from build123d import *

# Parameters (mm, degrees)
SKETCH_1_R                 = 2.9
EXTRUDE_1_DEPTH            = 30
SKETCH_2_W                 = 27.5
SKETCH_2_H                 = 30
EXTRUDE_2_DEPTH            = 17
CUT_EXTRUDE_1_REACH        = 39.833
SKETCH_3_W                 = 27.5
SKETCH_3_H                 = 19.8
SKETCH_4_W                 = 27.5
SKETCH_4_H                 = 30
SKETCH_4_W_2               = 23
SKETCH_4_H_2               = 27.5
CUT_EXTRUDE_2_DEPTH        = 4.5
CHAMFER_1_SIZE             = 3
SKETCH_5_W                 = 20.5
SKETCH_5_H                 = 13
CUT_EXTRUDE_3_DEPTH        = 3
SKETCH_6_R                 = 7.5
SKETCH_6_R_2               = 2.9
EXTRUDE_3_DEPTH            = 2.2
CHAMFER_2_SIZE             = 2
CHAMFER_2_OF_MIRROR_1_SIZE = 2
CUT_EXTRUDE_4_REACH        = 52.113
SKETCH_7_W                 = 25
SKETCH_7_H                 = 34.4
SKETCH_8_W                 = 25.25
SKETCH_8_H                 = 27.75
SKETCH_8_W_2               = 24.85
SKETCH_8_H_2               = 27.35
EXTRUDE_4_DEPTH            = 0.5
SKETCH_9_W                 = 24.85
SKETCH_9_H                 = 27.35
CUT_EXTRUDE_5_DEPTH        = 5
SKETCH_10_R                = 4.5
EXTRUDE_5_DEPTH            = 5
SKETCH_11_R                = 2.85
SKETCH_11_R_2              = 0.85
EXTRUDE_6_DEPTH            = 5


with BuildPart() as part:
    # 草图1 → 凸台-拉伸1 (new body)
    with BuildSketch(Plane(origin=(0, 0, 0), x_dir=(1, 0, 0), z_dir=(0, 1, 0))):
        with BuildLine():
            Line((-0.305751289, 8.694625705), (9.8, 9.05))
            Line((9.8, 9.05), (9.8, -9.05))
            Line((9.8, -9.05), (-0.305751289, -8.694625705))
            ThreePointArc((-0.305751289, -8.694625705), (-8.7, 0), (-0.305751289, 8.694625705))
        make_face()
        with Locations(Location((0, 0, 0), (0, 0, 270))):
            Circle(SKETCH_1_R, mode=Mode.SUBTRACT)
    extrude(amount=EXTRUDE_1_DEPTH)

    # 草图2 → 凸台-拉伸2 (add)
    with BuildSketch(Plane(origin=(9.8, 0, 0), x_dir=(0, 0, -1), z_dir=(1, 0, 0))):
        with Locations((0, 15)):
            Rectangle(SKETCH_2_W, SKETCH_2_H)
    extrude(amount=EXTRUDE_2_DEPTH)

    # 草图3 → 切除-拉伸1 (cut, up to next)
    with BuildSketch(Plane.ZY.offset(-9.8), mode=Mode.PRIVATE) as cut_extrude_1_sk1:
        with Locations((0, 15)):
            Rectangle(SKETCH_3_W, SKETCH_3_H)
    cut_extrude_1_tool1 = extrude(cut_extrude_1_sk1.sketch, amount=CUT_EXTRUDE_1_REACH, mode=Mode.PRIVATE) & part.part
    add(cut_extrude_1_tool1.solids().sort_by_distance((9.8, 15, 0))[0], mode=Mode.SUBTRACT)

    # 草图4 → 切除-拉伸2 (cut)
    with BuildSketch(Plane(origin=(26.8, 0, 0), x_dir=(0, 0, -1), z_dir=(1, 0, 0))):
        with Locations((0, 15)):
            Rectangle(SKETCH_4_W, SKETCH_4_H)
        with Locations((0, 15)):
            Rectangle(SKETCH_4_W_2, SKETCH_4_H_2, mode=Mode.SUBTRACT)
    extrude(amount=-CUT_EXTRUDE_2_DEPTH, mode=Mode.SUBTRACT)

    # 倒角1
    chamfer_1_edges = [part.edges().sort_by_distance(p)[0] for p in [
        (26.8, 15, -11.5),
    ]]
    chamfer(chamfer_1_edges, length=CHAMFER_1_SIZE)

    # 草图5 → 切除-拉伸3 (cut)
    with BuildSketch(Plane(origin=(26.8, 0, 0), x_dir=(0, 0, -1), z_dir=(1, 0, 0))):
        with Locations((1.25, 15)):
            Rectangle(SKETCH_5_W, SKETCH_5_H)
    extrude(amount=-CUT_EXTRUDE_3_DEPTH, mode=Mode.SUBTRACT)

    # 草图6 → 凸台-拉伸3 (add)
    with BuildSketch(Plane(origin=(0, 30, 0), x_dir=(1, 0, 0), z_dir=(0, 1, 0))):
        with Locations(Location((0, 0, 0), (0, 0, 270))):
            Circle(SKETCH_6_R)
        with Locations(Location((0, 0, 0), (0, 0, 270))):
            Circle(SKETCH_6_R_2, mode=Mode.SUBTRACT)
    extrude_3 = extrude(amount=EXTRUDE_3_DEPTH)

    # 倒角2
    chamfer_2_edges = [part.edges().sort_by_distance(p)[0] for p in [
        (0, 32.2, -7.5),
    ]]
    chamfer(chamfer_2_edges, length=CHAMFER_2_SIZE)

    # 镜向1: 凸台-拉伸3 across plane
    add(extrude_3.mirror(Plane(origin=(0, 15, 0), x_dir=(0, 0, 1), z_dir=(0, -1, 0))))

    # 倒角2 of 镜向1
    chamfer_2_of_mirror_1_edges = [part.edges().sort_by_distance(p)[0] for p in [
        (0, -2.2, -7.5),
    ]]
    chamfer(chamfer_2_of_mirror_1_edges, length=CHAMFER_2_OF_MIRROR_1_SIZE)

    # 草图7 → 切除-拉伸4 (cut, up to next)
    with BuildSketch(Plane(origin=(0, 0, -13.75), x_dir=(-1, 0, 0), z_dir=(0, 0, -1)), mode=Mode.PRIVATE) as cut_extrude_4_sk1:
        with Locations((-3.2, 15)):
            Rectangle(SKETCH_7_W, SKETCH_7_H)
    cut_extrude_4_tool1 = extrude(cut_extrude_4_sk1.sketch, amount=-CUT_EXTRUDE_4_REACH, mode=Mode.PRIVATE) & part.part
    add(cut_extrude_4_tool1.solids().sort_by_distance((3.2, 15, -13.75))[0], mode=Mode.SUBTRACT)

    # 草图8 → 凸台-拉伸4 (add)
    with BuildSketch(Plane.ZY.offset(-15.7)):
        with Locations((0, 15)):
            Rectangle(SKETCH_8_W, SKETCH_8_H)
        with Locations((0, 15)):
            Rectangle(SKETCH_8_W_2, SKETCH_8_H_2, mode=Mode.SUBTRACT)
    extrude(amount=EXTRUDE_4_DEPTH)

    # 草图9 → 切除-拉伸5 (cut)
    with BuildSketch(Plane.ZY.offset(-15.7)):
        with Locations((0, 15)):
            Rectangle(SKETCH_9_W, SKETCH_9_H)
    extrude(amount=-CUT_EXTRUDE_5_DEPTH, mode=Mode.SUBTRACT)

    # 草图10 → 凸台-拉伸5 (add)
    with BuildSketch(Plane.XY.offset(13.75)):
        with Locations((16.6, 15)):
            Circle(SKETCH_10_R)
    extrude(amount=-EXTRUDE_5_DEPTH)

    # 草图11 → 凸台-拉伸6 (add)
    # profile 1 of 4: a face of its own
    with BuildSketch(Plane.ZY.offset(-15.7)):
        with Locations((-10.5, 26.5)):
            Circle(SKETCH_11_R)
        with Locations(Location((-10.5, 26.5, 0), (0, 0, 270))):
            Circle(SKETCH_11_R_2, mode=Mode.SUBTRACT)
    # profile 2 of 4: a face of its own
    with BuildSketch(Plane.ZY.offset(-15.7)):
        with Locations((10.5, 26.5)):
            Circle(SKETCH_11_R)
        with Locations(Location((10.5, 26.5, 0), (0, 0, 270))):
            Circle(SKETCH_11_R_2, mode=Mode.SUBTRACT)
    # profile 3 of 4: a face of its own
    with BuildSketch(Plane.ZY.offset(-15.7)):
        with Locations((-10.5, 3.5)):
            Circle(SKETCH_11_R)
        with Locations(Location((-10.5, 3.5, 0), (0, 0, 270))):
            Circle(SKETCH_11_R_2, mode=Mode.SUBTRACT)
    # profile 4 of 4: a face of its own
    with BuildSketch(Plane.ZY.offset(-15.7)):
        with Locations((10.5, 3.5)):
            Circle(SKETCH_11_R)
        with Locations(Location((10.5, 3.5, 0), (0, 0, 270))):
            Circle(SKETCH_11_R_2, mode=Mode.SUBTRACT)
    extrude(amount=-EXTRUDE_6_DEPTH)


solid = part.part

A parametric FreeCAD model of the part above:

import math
import FreeCAD as App
import Part
import Sketcher

V = App.Vector
Q = App.Units.Quantity


def edges_at(feature, points):
    """Names of the edges that pass closest to the given points."""
    edges = feature.Shape.Edges
    near = lambda p: min(range(len(edges)), key=lambda i: edges[i].distToShape(Part.Vertex(*p))[0])
    return sorted({f"Edge{near(p) + 1}" for p in points})

doc = App.newDocument("Part")
body = doc.addObject("PartDesign::Body", "Body")

# Sketch on XZ plane
sketch1 = doc.addObject("Sketcher::SketchObject", "Sketch")
body.addObject(sketch1)
sketch1.AttachmentSupport = (doc.XZ_Plane, [""])
sketch1.MapMode = "FlatFace"
sketch1.addGeometry([
    Part.LineSegment(V(9.8, -9.05, 0), V(-0.305751, -8.694626, 0)),  # 0
    Part.ArcOfCircle(Part.Circle(V(0, 0, 0), V(0, 0, 1), 8.7), math.radians(92.014008), math.radians(267.985992)),  # 1
    Part.LineSegment(V(-0.305751, 8.694626, 0), V(9.8, 9.05, 0)),  # 2
    Part.LineSegment(V(9.8, 9.05, 0), V(9.8, -9.05, 0)),  # 3
    Part.Circle(V(0, 0, 0), V(0, 0, 1), 2.9),  # 4
], False)
sketch1.addConstraint([
    Sketcher.Constraint("Tangent", 0, 2, 1, 2),
    Sketcher.Constraint("Tangent", 1, 1, 2, 1),
    Sketcher.Constraint("Coincident", 2, 2, 3, 1),
    Sketcher.Constraint("Coincident", 3, 2, 0, 1),
    Sketcher.Constraint("Vertical", 3),
    Sketcher.Constraint("Coincident", 1, 3, -1, 1),
    Sketcher.Constraint("Coincident", 4, 3, -1, 1),
    Sketcher.Constraint("Vertical", 0, 2, 1, 1),
    Sketcher.Constraint("Diameter", 4, Q("5.8 mm")),
    Sketcher.Constraint("Radius", 1, Q("8.7 mm")),
    Sketcher.Constraint("DistanceY", 3, 2, 3, 1, Q("18.1 mm")),
    Sketcher.Constraint("DistanceX", -1, 1, 2, 2, Q("9.8 mm")),
])
pad1 = doc.addObject("PartDesign::Pad", "Pad")
body.addObject(pad1)
pad1.Profile = sketch1
pad1.Length = 30
pad1.Reversed = True

# Sketch on YZ plane
sketch2 = doc.addObject("Sketcher::SketchObject", "Sketch001")
body.addObject(sketch2)
sketch2.AttachmentSupport = (doc.YZ_Plane, [""])
sketch2.MapMode = "FlatFace"
sketch2.AttachmentOffset = App.Placement(V(0, 0, 9.8), App.Rotation())
sketch2.addGeometry([
    Part.LineSegment(V(30, 13.75, 0), V(0, 13.75, 0)),
    Part.LineSegment(V(0, 13.75, 0), V(0, -13.75, 0)),
    Part.LineSegment(V(0, -13.75, 0), V(30, -13.75, 0)),
    Part.LineSegment(V(30, -13.75, 0), V(30, 13.75, 0)),
], False)
sketch2.addConstraint([
    Sketcher.Constraint("Coincident", 0, 2, 1, 1),
    Sketcher.Constraint("Coincident", 1, 2, 2, 1),
    Sketcher.Constraint("Coincident", 2, 2, 3, 1),
    Sketcher.Constraint("Coincident", 3, 2, 0, 1),
    Sketcher.Constraint("Horizontal", 0),
    Sketcher.Constraint("Vertical", 1),
    Sketcher.Constraint("Horizontal", 2),
    Sketcher.Constraint("Vertical", 3),
    Sketcher.Constraint("Symmetric", 0, 2, 1, 2, -1, 1),
    Sketcher.Constraint("DistanceX", 0, 2, 0, 1, Q("30 mm")),
    Sketcher.Constraint("DistanceY", 1, 2, 1, 1, Q("27.5 mm")),
])
pad2 = doc.addObject("PartDesign::Pad", "Pad001")
body.addObject(pad2)
pad2.Profile = sketch2
pad2.Length = 17

# Sketch on YZ plane
sketch3 = doc.addObject("Sketcher::SketchObject", "Sketch002")
body.addObject(sketch3)
sketch3.AttachmentSupport = (doc.YZ_Plane, [""])
sketch3.MapMode = "FlatFace"
sketch3.AttachmentOffset = App.Placement(V(0, 0, 9.8), App.Rotation())
sketch3.addGeometry([
    Part.LineSegment(V(24.9, -13.75, 0), V(5.1, -13.75, 0)),
    Part.LineSegment(V(5.1, -13.75, 0), V(5.1, 13.75, 0)),
    Part.LineSegment(V(5.1, 13.75, 0), V(24.9, 13.75, 0)),
    Part.LineSegment(V(24.9, 13.75, 0), V(24.9, -13.75, 0)),
], False)
sketch3.addConstraint([
    Sketcher.Constraint("Coincident", 0, 2, 1, 1),
    Sketcher.Constraint("Coincident", 1, 2, 2, 1),
    Sketcher.Constraint("Coincident", 2, 2, 3, 1),
    Sketcher.Constraint("Coincident", 3, 2, 0, 1),
    Sketcher.Constraint("Horizontal", 0),
    Sketcher.Constraint("Vertical", 1),
    Sketcher.Constraint("Horizontal", 2),
    Sketcher.Constraint("Vertical", 3),
    Sketcher.Constraint("DistanceX", 0, 2, 0, 1, Q("19.8 mm")),
    Sketcher.Constraint("DistanceY", 1, 1, 1, 2, Q("27.5 mm")),
    Sketcher.Constraint("DistanceX", -1, 1, 0, 2, Q("5.1 mm")),
    Sketcher.Constraint("DistanceY", 0, 2, -1, 1, Q("13.75 mm")),
])
pocket1 = doc.addObject("PartDesign::Pocket", "Pocket")
body.addObject(pocket1)
pocket1.Profile = sketch3
pocket1.Type = "UpToFirst"

# Sketch on YZ plane
sketch4 = doc.addObject("Sketcher::SketchObject", "Sketch003")
body.addObject(sketch4)
sketch4.AttachmentSupport = (doc.YZ_Plane, [""])
sketch4.MapMode = "FlatFace"
sketch4.AttachmentOffset = App.Placement(V(0, 0, 26.8), App.Rotation())
sketch4.addGeometry([
    Part.LineSegment(V(30, 13.75, 0), V(0, 13.75, 0)),  # 0
    Part.LineSegment(V(0, 13.75, 0), V(0, -13.75, 0)),  # 1
    Part.LineSegment(V(0, -13.75, 0), V(30, -13.75, 0)),  # 2
    Part.LineSegment(V(30, -13.75, 0), V(30, 13.75, 0)),  # 3
    Part.LineSegment(V(1.25, -11.5, 0), V(1.25, 11.5, 0)),  # 4
    Part.LineSegment(V(1.25, 11.5, 0), V(28.75, 11.5, 0)),  # 5
    Part.LineSegment(V(28.75, 11.5, 0), V(28.75, -11.5, 0)),  # 6
    Part.LineSegment(V(28.75, -11.5, 0), V(1.25, -11.5, 0)),  # 7
], False)
sketch4.addConstraint([
    Sketcher.Constraint("Coincident", 0, 2, 1, 1),
    Sketcher.Constraint("Coincident", 1, 2, 2, 1),
    Sketcher.Constraint("Coincident", 2, 2, 3, 1),
    Sketcher.Constraint("Coincident", 3, 2, 0, 1),
    Sketcher.Constraint("Coincident", 4, 2, 5, 1),
    Sketcher.Constraint("Coincident", 5, 2, 6, 1),
    Sketcher.Constraint("Coincident", 6, 2, 7, 1),
    Sketcher.Constraint("Coincident", 7, 2, 4, 1),
    Sketcher.Constraint("Horizontal", 0),
    Sketcher.Constraint("Vertical", 1),
    Sketcher.Constraint("Horizontal", 2),
    Sketcher.Constraint("Vertical", 3),
    Sketcher.Constraint("Vertical", 4),
    Sketcher.Constraint("Horizontal", 5),
    Sketcher.Constraint("Vertical", 6),
    Sketcher.Constraint("Horizontal", 7),
    Sketcher.Constraint("Symmetric", 0, 2, 1, 2, -1, 1),
    Sketcher.Constraint("Equal", 7, 1),
    Sketcher.Constraint("DistanceX", 0, 2, 0, 1, Q("30 mm")),
    Sketcher.Constraint("DistanceY", 4, 1, 4, 2, Q("23 mm")),
    Sketcher.Constraint("DistanceX", 5, 1, 5, 2, Q("27.5 mm")),
    Sketcher.Constraint("DistanceY", -1, 1, 4, 2, Q("11.5 mm")),
    Sketcher.Constraint("DistanceX", -1, 1, 4, 2, Q("1.25 mm")),
])
pocket2 = doc.addObject("PartDesign::Pocket", "Pocket001")
body.addObject(pocket2)
pocket2.Profile = sketch4
pocket2.Length = 4.5
doc.recompute()

chamfer = doc.addObject("PartDesign::Chamfer", "Chamfer")
body.addObject(chamfer)
chamfer.Base = (pocket2, edges_at(pocket2, [(26.8, 15, -11.5)]))
chamfer.Size = 3

# Sketch on YZ plane
sketch5 = doc.addObject("Sketcher::SketchObject", "Sketch004")
body.addObject(sketch5)
sketch5.AttachmentSupport = (doc.YZ_Plane, [""])
sketch5.MapMode = "FlatFace"
sketch5.AttachmentOffset = App.Placement(V(0, 0, 26.8), App.Rotation())
sketch5.addGeometry([
    Part.LineSegment(V(21.5, 9, 0), V(8.5, 9, 0)),
    Part.LineSegment(V(8.5, 9, 0), V(8.5, -11.5, 0)),
    Part.LineSegment(V(8.5, -11.5, 0), V(21.5, -11.5, 0)),
    Part.LineSegment(V(21.5, -11.5, 0), V(21.5, 9, 0)),
], False)
sketch5.addConstraint([
    Sketcher.Constraint("Coincident", 0, 2, 1, 1),
    Sketcher.Constraint("Coincident", 1, 2, 2, 1),
    Sketcher.Constraint("Coincident", 2, 2, 3, 1),
    Sketcher.Constraint("Coincident", 3, 2, 0, 1),
    Sketcher.Constraint("Horizontal", 0),
    Sketcher.Constraint("Vertical", 1),
    Sketcher.Constraint("Horizontal", 2),
    Sketcher.Constraint("Vertical", 3),
    Sketcher.Constraint("DistanceX", 0, 2, 0, 1, Q("13 mm")),
    Sketcher.Constraint("DistanceY", 1, 2, 1, 1, Q("20.5 mm")),
    Sketcher.Constraint("DistanceY", -1, 1, 0, 2, Q("9 mm")),
    Sketcher.Constraint("DistanceX", -1, 1, 0, 2, Q("8.5 mm")),
])
pocket3 = doc.addObject("PartDesign::Pocket", "Pocket002")
body.addObject(pocket3)
pocket3.Profile = sketch5
pocket3.Length = 3

# Sketch on XZ plane
sketch6 = doc.addObject("Sketcher::SketchObject", "Sketch005")
body.addObject(sketch6)
sketch6.AttachmentSupport = (doc.XZ_Plane, [""])
sketch6.MapMode = "FlatFace"
sketch6.AttachmentOffset = App.Placement(V(0, 0, -30), App.Rotation())
sketch6.addGeometry([
    Part.Circle(V(0, 0, 0), V(0, 0, 1), 7.5),
    Part.Circle(V(0, 0, 0), V(0, 0, 1), 2.9),
], False)
sketch6.addConstraint([
    Sketcher.Constraint("Coincident", 0, 3, -1, 1),
    Sketcher.Constraint("Coincident", 1, 3, -1, 1),
    Sketcher.Constraint("Diameter", 0, Q("15 mm")),
    Sketcher.Constraint("Diameter", 1, Q("5.8 mm")),
])
pad3 = doc.addObject("PartDesign::Pad", "Pad002")
body.addObject(pad3)
pad3.Profile = sketch6
pad3.Length = 2.2
pad3.Reversed = True
doc.recompute()

chamfer2 = doc.addObject("PartDesign::Chamfer", "Chamfer001")
body.addObject(chamfer2)
chamfer2.Base = (pad3, edges_at(pad3, [(0, 32.2, -7.5)]))
chamfer2.Size = 2
doc.recompute()

datumplane = doc.addObject("PartDesign::Plane", "DatumPlane")
body.addObject(datumplane)
datumplane.AttachmentSupport = (doc.XZ_Plane, [""])
datumplane.MapMode = "FlatFace"
datumplane.AttachmentOffset = App.Placement(V(0, 0, -15), App.Rotation())
mirrored = doc.addObject("PartDesign::Mirrored", "Mirrored")
body.addObject(mirrored)
mirrored.Originals = [pad3]
mirrored.MirrorPlane = (datumplane, [""])
body.Tip = mirrored
doc.recompute()

chamfer3 = doc.addObject("PartDesign::Chamfer", "Chamfer002")
body.addObject(chamfer3)
chamfer3.Base = (mirrored, edges_at(mirrored, [(0, -2.2, -7.5)]))
chamfer3.Size = 2

# Sketch on XY plane
sketch7 = doc.addObject("Sketcher::SketchObject", "Sketch006")
body.addObject(sketch7)
sketch7.AttachmentSupport = (doc.XY_Plane, [""])
sketch7.MapMode = "FlatFace"
sketch7.AttachmentOffset = App.Placement(V(0, 0, -13.75), App.Rotation())
sketch7.addGeometry([
    Part.LineSegment(V(15.7, 32.2, 0), V(15.7, -2.2, 0)),
    Part.LineSegment(V(15.7, -2.2, 0), V(-9.3, -2.2, 0)),
    Part.LineSegment(V(-9.3, -2.2, 0), V(-9.3, 32.2, 0)),
    Part.LineSegment(V(-9.3, 32.2, 0), V(15.7, 32.2, 0)),
], False)
sketch7.addConstraint([
    Sketcher.Constraint("Coincident", 0, 2, 1, 1),
    Sketcher.Constraint("Coincident", 1, 2, 2, 1),
    Sketcher.Constraint("Coincident", 2, 2, 3, 1),
    Sketcher.Constraint("Coincident", 3, 2, 0, 1),
    Sketcher.Constraint("Vertical", 0),
    Sketcher.Constraint("Horizontal", 1),
    Sketcher.Constraint("Vertical", 2),
    Sketcher.Constraint("Horizontal", 3),
    Sketcher.Constraint("DistanceX", 1, 2, 1, 1, Q("25 mm")),
    Sketcher.Constraint("DistanceY", 0, 2, 0, 1, Q("34.4 mm")),
    Sketcher.Constraint("DistanceX", -1, 1, 0, 2, Q("15.7 mm")),
    Sketcher.Constraint("DistanceY", 0, 2, -1, 1, Q("2.2 mm")),
])
pocket4 = doc.addObject("PartDesign::Pocket", "Pocket003")
body.addObject(pocket4)
pocket4.Profile = sketch7
pocket4.Length = 27.5
pocket4.Reversed = True

# Sketch on YZ plane
sketch8 = doc.addObject("Sketcher::SketchObject", "Sketch007")
body.addObject(sketch8)
sketch8.AttachmentSupport = (doc.YZ_Plane, [""])
sketch8.MapMode = "FlatFace"
sketch8.AttachmentOffset = App.Placement(V(0, 0, 15.7), App.Rotation())
sketch8.addGeometry([
    Part.LineSegment(V(28.875, -12.625, 0), V(1.125, -12.625, 0)),  # 0
    Part.LineSegment(V(1.125, -12.625, 0), V(1.125, 12.625, 0)),  # 1
    Part.LineSegment(V(1.125, 12.625, 0), V(28.875, 12.625, 0)),  # 2
    Part.LineSegment(V(28.875, 12.625, 0), V(28.875, -12.625, 0)),  # 3
    Part.LineSegment(V(1.325, 12.425, 0), V(1.325, -12.425, 0)),  # 4
    Part.LineSegment(V(1.325, -12.425, 0), V(28.675, -12.425, 0)),  # 5
    Part.LineSegment(V(28.675, -12.425, 0), V(28.675, 12.425, 0)),  # 6
    Part.LineSegment(V(28.675, 12.425, 0), V(1.325, 12.425, 0)),  # 7
], False)
sketch8.addConstraint([
    Sketcher.Constraint("Coincident", 0, 2, 1, 1),
    Sketcher.Constraint("Coincident", 1, 2, 2, 1),
    Sketcher.Constraint("Coincident", 2, 2, 3, 1),
    Sketcher.Constraint("Coincident", 3, 2, 0, 1),
    Sketcher.Constraint("Coincident", 4, 2, 5, 1),
    Sketcher.Constraint("Coincident", 5, 2, 6, 1),
    Sketcher.Constraint("Coincident", 6, 2, 7, 1),
    Sketcher.Constraint("Coincident", 7, 2, 4, 1),
    Sketcher.Constraint("Horizontal", 0),
    Sketcher.Constraint("Vertical", 1),
    Sketcher.Constraint("Horizontal", 2),
    Sketcher.Constraint("Vertical", 3),
    Sketcher.Constraint("Vertical", 4),
    Sketcher.Constraint("Horizontal", 5),
    Sketcher.Constraint("Vertical", 6),
    Sketcher.Constraint("Horizontal", 7),
    Sketcher.Constraint("DistanceX", 0, 2, 0, 1, Q("27.75 mm")),
    Sketcher.Constraint("DistanceX", 5, 1, 5, 2, Q("27.35 mm")),
    Sketcher.Constraint("DistanceY", 1, 1, 1, 2, Q("25.25 mm")),
    Sketcher.Constraint("DistanceY", 4, 2, 4, 1, Q("24.85 mm")),
    Sketcher.Constraint("DistanceX", 0, 2, 4, 2, Q("0.2 mm")),
    Sketcher.Constraint("DistanceY", 0, 2, 4, 2, Q("0.2 mm")),
    Sketcher.Constraint("DistanceX", -1, 1, 0, 2, Q("1.125 mm")),
    Sketcher.Constraint("DistanceY", 0, 2, -1, 1, Q("12.625 mm")),
])
pad4 = doc.addObject("PartDesign::Pad", "Pad003")
body.addObject(pad4)
pad4.Profile = sketch8
pad4.Length = 0.5
pad4.Reversed = True

# Sketch on YZ plane
sketch9 = doc.addObject("Sketcher::SketchObject", "Sketch008")
body.addObject(sketch9)
sketch9.AttachmentSupport = (doc.YZ_Plane, [""])
sketch9.MapMode = "FlatFace"
sketch9.AttachmentOffset = App.Placement(V(0, 0, 15.7), App.Rotation())
sketch9.addGeometry([
    Part.LineSegment(V(28.675, -12.425, 0), V(1.325, -12.425, 0)),
    Part.LineSegment(V(1.325, -12.425, 0), V(1.325, 12.425, 0)),
    Part.LineSegment(V(1.325, 12.425, 0), V(28.675, 12.425, 0)),
    Part.LineSegment(V(28.675, 12.425, 0), V(28.675, -12.425, 0)),
], False)
sketch9.addConstraint([
    Sketcher.Constraint("Coincident", 0, 2, 1, 1),
    Sketcher.Constraint("Coincident", 1, 2, 2, 1),
    Sketcher.Constraint("Coincident", 2, 2, 3, 1),
    Sketcher.Constraint("Coincident", 3, 2, 0, 1),
    Sketcher.Constraint("Horizontal", 0),
    Sketcher.Constraint("Vertical", 1),
    Sketcher.Constraint("Horizontal", 2),
    Sketcher.Constraint("Vertical", 3),
    Sketcher.Constraint("DistanceX", 0, 2, 0, 1, Q("27.35 mm")),
    Sketcher.Constraint("DistanceY", 1, 1, 1, 2, Q("24.85 mm")),
    Sketcher.Constraint("DistanceX", -1, 1, 0, 2, Q("1.325 mm")),
    Sketcher.Constraint("DistanceY", 0, 2, -1, 1, Q("12.425 mm")),
])
pocket5 = doc.addObject("PartDesign::Pocket", "Pocket004")
body.addObject(pocket5)
pocket5.Profile = sketch9
pocket5.Length = 5
pocket5.Reversed = True

# Sketch on XY plane
sketch10 = doc.addObject("Sketcher::SketchObject", "Sketch009")
body.addObject(sketch10)
sketch10.AttachmentSupport = (doc.XY_Plane, [""])
sketch10.MapMode = "FlatFace"
sketch10.AttachmentOffset = App.Placement(V(0, 0, 13.75), App.Rotation())
sketch10.addGeometry(Part.Circle(V(16.6, 15, 0), V(0, 0, 1), 4.5), False)
sketch10.addConstraint([
    Sketcher.Constraint("Diameter", 0, Q("9 mm")),
    Sketcher.Constraint("DistanceY", -1, 1, 0, 3, Q("15 mm")),
    Sketcher.Constraint("DistanceX", -1, 1, 0, 3, Q("16.6 mm")),
])
pad5 = doc.addObject("PartDesign::Pad", "Pad004")
body.addObject(pad5)
pad5.Profile = sketch10
pad5.Length = 5
pad5.Reversed = True

# Sketch on YZ plane
sketch11 = doc.addObject("Sketcher::SketchObject", "Sketch010")
body.addObject(sketch11)
sketch11.AttachmentSupport = (doc.YZ_Plane, [""])
sketch11.MapMode = "FlatFace"
sketch11.AttachmentOffset = App.Placement(V(0, 0, 15.7), App.Rotation())
sketch11.addGeometry([
    Part.Circle(V(26.5, -10.5, 0), V(0, 0, 1), 2.85),  # 0
    Part.Circle(V(26.5, -10.5, 0), V(0, 0, 1), 0.85),  # 1
    Part.Circle(V(26.5, 10.5, 0), V(0, 0, 1), 2.85),  # 2
    Part.Circle(V(26.5, 10.5, 0), V(0, 0, 1), 0.85),  # 3
    Part.Circle(V(3.5, -10.5, 0), V(0, 0, 1), 2.85),  # 4
    Part.Circle(V(3.5, -10.5, 0), V(0, 0, 1), 0.85),  # 5
    Part.Circle(V(3.5, 10.5, 0), V(0, 0, 1), 2.85),  # 6
    Part.Circle(V(3.5, 10.5, 0), V(0, 0, 1), 0.85),  # 7
], False)
sketch11.addConstraint([
    Sketcher.Constraint("Coincident", 1, 3, 0, 3),
    Sketcher.Constraint("Coincident", 3, 3, 2, 3),
    Sketcher.Constraint("Coincident", 5, 3, 4, 3),
    Sketcher.Constraint("Coincident", 7, 3, 6, 3),
    Sketcher.Constraint("Equal", 0, 2),
    Sketcher.Constraint("Equal", 1, 3),
    Sketcher.Constraint("Equal", 2, 4),
    Sketcher.Constraint("Equal", 3, 5),
    Sketcher.Constraint("Equal", 4, 6),
    Sketcher.Constraint("Equal", 5, 7),
    Sketcher.Constraint("Symmetric", 0, 3, 2, 3, -1),
    Sketcher.Constraint("Symmetric", 4, 3, 6, 3, -1),
    Sketcher.Constraint("Horizontal", 1, 3, 4, 3),
    Sketcher.Constraint("Diameter", 0, Q("5.7 mm")),
    Sketcher.Constraint("Diameter", 1, Q("1.7 mm")),
    Sketcher.Constraint("DistanceY", 0, 3, 2, 3, Q("21 mm")),
    Sketcher.Constraint("DistanceX", 4, 3, 0, 3, Q("23 mm")),
    Sketcher.Constraint("DistanceX", -1, 1, 0, 3, Q("26.5 mm")),
])
pad6 = doc.addObject("PartDesign::Pad", "Pad005")
body.addObject(pad6)
pad6.Profile = sketch11
pad6.Length = 5

doc.recompute()
